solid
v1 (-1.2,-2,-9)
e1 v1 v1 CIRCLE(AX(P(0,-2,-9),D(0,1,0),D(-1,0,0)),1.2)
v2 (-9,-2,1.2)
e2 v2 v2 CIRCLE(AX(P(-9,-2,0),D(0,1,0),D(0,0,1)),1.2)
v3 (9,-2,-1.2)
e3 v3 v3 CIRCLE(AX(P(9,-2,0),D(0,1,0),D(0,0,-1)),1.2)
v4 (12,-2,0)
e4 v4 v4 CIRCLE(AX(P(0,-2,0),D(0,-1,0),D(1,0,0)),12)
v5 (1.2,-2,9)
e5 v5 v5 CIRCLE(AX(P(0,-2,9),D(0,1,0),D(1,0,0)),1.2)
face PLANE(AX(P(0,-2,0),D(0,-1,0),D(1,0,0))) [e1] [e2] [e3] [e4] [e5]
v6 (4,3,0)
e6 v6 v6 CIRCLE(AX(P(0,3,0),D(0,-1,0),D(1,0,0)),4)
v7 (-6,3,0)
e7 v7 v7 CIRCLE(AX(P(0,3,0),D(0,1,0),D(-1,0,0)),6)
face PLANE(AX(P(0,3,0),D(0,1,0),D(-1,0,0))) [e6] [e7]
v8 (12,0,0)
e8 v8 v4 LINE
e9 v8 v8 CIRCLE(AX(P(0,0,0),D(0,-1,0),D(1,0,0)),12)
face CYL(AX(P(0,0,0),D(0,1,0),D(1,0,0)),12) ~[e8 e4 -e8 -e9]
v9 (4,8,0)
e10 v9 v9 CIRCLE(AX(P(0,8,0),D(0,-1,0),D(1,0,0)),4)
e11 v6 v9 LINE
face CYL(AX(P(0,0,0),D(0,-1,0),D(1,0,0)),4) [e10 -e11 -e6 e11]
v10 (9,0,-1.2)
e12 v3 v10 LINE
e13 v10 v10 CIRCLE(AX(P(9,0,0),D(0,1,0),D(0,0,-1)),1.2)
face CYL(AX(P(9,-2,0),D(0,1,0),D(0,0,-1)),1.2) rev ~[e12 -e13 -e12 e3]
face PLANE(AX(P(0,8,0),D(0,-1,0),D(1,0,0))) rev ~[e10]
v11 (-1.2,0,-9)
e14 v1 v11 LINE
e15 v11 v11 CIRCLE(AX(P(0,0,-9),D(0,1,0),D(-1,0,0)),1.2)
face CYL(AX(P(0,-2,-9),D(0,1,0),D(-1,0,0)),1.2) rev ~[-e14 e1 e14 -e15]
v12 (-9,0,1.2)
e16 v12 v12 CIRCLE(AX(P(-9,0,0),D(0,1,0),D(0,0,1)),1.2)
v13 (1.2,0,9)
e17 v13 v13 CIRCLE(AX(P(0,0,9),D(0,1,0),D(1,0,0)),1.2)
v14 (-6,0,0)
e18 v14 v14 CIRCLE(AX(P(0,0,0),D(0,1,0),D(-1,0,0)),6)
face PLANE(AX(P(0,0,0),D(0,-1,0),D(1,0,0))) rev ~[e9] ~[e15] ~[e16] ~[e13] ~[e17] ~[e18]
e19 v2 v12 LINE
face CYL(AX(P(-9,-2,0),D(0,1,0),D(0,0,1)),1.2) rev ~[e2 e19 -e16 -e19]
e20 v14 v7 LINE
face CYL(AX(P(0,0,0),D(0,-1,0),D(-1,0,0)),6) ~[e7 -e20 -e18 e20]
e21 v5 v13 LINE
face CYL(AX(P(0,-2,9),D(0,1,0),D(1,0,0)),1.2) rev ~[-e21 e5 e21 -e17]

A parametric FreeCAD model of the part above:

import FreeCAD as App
import Part
import Sketcher
from FreeCAD import Vector

doc = App.newDocument("Part")
body = doc.addObject("PartDesign::Body", "Body")

# Sketch on XZ plane
sketch1 = body.newObject("Sketcher::SketchObject", "Sketch")
sketch1.AttachmentSupport = (doc.getObject("XZ_Plane"), [""])
sketch1.MapMode = "FlatFace"
sketch1.addGeometry(Part.Circle(Vector(0, 0, 0), Vector(0, 0, 1), 6), False)
sketch1.addConstraint([
    Sketcher.Constraint("Coincident", 0, 3, -1, 1),
    Sketcher.Constraint("Diameter", 0, 12.0),
])
pad1 = body.newObject("PartDesign::Pad", "Pad")
pad1.Profile = sketch1
pad1.Length = 3
pad1.Reversed = True

# Sketch on XZ plane
sketch2 = body.newObject("Sketcher::SketchObject", "Sketch001")
sketch2.AttachmentSupport = (doc.getObject("XZ_Plane"), [""])
sketch2.MapMode = "FlatFace"
sketch2.addGeometry(Part.Circle(Vector(0, 0, 0), Vector(0, 0, 1), 4), False)
sketch2.addConstraint([
    Sketcher.Constraint("Coincident", 0, 3, -1, 1),
    Sketcher.Constraint("Diameter", 0, 8.0),
])
pad2 = body.newObject("PartDesign::Pad", "Pad001")
pad2.Profile = sketch2
pad2.Length = 8
pad2.Reversed = True

# Sketch on XZ plane
sketch3 = body.newObject("Sketcher::SketchObject", "Sketch002")
sketch3.AttachmentSupport = (doc.getObject("XZ_Plane"), [""])
sketch3.MapMode = "FlatFace"
sketch3.addGeometry(Part.Circle(Vector(0, 0, 0), Vector(0, 0, 1), 12), False)
sketch3.addConstraint([
    Sketcher.Constraint("Coincident", 0, 3, -1, 1),
    Sketcher.Constraint("Diameter", 0, 24.0),
])
pad3 = body.newObject("PartDesign::Pad", "Pad002")
pad3.Profile = sketch3
pad3.Length = 2

# Sketch on XZ plane
sketch4 = body.newObject("Sketcher::SketchObject", "Sketch003")
sketch4.AttachmentSupport = (doc.getObject("XZ_Plane"), [""])
sketch4.MapMode = "FlatFace"
sketch4.AttachmentOffset = App.Placement(Vector(0, 0, 2), App.Rotation())
sketch4.addGeometry(Part.Circle(Vector(9, 0, 0), Vector(0, 0, 1), 1.2), False)
sketch4.addConstraint([
    Sketcher.Constraint("PointOnObject", 0, 3, -1),
    Sketcher.Constraint("Diameter", 0, 2.4),
    Sketcher.Constraint("DistanceX", -1, 1, 0, 3, 9.0),
])
doc.recompute()
hole = body.newObject("PartDesign::Hole", "Hole")
hole.Profile = sketch4
hole.ThreadType = "None"
hole.Diameter = 2.4
hole.DepthType = "ThroughAll"
doc.recompute()

polarpattern = body.newObject("PartDesign::PolarPattern", "PolarPattern")
polarpattern.Originals = [hole]
polarpattern.Axis = (doc.getObject("Y_Axis"), [""])
polarpattern.Angle = 360
polarpattern.Occurrences = 4
body.Tip = polarpattern

doc.recompute()
